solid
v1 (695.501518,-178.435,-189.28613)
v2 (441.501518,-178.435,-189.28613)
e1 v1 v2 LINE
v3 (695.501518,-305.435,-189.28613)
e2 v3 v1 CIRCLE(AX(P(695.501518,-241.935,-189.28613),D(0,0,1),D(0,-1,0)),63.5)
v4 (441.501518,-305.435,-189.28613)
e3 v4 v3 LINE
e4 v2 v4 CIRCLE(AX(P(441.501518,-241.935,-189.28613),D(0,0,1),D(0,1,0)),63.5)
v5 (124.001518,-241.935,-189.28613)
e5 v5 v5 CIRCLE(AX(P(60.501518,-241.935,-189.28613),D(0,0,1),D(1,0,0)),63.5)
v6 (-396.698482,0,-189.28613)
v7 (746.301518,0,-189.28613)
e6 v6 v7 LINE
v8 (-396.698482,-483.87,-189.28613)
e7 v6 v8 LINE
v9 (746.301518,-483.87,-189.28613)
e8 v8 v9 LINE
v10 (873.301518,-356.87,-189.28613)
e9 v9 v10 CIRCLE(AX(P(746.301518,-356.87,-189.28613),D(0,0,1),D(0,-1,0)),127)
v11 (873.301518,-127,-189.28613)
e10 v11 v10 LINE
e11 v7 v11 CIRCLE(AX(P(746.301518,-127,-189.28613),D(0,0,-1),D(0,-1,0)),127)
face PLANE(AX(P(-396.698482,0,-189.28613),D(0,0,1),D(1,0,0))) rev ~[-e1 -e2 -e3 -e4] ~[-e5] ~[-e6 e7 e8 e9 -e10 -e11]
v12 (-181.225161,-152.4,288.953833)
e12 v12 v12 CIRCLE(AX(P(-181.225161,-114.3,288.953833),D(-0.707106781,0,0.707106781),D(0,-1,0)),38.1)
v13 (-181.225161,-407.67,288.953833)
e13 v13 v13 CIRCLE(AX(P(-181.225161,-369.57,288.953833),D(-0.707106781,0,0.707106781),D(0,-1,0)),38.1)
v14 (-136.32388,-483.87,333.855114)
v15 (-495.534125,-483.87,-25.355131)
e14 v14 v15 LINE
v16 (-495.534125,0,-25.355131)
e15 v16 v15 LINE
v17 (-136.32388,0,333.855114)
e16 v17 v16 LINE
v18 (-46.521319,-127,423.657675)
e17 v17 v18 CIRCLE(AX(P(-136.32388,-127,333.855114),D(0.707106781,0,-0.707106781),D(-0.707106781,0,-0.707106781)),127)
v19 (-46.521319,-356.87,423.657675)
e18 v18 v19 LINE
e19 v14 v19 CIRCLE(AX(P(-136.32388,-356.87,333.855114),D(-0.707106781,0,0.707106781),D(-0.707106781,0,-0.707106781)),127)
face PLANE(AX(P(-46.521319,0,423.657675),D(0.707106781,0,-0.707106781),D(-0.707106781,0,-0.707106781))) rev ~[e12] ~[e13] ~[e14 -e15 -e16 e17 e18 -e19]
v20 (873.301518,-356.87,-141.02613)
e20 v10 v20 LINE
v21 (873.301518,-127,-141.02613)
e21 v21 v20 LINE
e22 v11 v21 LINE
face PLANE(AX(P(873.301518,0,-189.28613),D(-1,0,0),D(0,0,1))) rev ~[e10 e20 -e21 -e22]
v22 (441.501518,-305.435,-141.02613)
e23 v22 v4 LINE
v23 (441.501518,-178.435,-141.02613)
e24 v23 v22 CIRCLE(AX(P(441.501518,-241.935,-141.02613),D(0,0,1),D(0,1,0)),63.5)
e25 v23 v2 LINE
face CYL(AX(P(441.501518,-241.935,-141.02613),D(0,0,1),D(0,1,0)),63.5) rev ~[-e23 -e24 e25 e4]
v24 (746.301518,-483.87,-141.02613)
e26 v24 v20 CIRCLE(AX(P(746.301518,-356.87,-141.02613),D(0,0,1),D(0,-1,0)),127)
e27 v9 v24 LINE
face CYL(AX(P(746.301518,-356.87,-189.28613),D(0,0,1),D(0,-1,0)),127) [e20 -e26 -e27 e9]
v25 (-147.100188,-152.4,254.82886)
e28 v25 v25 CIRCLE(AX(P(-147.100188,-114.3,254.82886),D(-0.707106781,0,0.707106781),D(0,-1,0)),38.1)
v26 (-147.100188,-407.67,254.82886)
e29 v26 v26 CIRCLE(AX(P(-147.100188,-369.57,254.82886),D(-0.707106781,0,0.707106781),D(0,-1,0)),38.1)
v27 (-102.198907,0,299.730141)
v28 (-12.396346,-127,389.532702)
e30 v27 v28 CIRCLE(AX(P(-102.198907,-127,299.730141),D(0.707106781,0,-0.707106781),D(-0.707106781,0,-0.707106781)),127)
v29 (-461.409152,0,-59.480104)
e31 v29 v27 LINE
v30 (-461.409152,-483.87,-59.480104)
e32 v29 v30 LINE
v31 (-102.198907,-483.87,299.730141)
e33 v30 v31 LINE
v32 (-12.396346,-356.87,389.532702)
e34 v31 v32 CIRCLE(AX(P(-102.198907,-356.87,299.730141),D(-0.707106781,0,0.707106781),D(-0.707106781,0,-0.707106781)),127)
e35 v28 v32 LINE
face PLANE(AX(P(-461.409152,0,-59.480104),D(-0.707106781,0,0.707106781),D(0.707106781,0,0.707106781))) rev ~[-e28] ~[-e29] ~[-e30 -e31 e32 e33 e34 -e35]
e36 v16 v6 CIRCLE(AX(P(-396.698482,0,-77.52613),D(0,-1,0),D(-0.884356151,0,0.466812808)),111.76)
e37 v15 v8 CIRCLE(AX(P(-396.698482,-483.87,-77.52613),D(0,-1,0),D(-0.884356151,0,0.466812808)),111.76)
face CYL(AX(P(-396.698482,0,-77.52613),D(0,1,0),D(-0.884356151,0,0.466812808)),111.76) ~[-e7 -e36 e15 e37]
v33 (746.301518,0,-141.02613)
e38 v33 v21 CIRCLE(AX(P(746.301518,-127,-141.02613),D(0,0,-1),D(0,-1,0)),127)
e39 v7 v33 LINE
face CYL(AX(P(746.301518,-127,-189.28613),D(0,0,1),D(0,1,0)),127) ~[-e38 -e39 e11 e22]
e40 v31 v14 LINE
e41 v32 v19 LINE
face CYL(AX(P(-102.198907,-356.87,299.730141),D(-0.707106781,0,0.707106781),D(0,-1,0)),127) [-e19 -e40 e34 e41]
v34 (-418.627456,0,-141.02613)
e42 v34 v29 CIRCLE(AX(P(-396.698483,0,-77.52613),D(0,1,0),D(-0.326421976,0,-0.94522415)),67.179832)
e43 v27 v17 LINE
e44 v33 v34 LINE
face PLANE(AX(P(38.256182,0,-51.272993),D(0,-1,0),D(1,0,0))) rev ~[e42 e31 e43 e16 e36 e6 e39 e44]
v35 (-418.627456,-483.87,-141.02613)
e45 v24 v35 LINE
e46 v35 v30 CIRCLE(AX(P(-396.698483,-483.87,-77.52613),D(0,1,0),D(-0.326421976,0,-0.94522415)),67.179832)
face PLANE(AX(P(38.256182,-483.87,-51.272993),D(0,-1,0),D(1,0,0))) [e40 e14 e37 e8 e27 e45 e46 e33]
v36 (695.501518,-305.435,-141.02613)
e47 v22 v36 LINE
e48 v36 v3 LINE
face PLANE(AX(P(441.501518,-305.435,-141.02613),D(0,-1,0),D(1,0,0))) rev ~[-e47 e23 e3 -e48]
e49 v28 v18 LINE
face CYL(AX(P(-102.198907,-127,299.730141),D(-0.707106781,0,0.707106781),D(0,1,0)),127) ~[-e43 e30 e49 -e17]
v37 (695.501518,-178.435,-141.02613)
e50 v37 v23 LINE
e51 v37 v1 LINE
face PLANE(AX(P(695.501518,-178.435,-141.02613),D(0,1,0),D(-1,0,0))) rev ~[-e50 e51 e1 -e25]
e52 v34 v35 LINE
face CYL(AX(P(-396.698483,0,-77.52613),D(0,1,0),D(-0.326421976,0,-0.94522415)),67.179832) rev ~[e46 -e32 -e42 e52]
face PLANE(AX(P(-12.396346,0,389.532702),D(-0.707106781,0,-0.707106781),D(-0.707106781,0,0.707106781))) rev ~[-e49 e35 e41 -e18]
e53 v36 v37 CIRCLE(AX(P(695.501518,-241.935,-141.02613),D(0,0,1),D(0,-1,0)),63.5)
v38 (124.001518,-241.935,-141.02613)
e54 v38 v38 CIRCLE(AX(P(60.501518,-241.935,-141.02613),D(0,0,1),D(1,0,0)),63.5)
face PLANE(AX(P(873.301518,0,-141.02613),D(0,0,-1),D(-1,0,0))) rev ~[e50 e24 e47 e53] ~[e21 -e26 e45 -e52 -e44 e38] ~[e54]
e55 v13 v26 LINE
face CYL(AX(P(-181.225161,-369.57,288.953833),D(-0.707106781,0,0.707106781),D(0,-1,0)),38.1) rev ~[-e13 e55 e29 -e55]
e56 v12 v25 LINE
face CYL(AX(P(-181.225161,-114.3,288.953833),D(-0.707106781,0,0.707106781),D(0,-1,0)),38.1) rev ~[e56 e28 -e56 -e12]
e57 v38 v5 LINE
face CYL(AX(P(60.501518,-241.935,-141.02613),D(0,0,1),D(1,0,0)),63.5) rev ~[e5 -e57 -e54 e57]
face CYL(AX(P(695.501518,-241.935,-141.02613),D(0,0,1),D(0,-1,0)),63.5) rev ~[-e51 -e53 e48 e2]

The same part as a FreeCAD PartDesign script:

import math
import FreeCAD as App
import Part
import Sketcher

V = App.Vector
Q = App.Units.Quantity


def edges_at(feature, points):
    """Names of the edges that pass closest to the given points."""
    edges = feature.Shape.Edges
    near = lambda p: min(range(len(edges)), key=lambda i: edges[i].distToShape(Part.Vertex(*p))[0])
    return sorted({f"Edge{near(p) + 1}" for p in points})

doc = App.newDocument("Part")
body = doc.addObject("PartDesign::Body", "Body")

# Sketch on XZ plane
sketch1 = body.newObject("Sketcher::SketchObject", "Sketch")
sketch1.AttachmentSupport = (doc.getObject("XZ_Plane"), [""])
sketch1.MapMode = "FlatFace"
sketch1.addGeometry(Part.LineSegment(V(-396.698482, -189.28613, 0), V(873.301518, -189.28613, 0)), False)
sketch1.addGeometry(Part.LineSegment(V(873.301518, -189.28613, 0), V(873.301518, -141.02613, 0)), False)
sketch1.addGeometry(Part.LineSegment(V(873.301518, -141.02613, 0), V(-418.627456, -141.02613, 0)), False)
sketch1.addGeometry(Part.ArcOfCircle(Part.Circle(V(-396.698483, -77.52613, 0), V(0, 0, 1), 67.179832), math.radians(164.417675), math.radians(250.948253)), False)
sketch1.addGeometry(Part.LineSegment(V(-461.409152, -59.480104, 0), V(-12.396346, 389.532702, 0)), False)
sketch1.addGeometry(Part.LineSegment(V(-12.396346, 389.532702, 0), V(-46.521319, 423.657675, 0)), False)
sketch1.addGeometry(Part.LineSegment(V(-46.521319, 423.657675, 0), V(-495.534125, -25.355131, 0)), False)
sketch1.addGeometry(Part.ArcOfCircle(Part.Circle(V(-396.698482, -77.52613, 0), V(0, 0, 1), 111.76), math.radians(152.172393), math.radians(270)), False)
sketch1.addConstraint(Sketcher.Constraint("Coincident", 0, 2, 1, 1))
sketch1.addConstraint(Sketcher.Constraint("Coincident", 1, 2, 2, 1))
sketch1.addConstraint(Sketcher.Constraint("Coincident", 2, 2, 3, 2))
sketch1.addConstraint(Sketcher.Constraint("Coincident", 3, 1, 4, 1))
sketch1.addConstraint(Sketcher.Constraint("Coincident", 4, 2, 5, 1))
sketch1.addConstraint(Sketcher.Constraint("Coincident", 5, 2, 6, 1))
sketch1.addConstraint(Sketcher.Constraint("Coincident", 6, 2, 7, 1))
sketch1.addConstraint(Sketcher.Constraint("Tangent", 7, 2, 0, 1))
sketch1.addConstraint(Sketcher.Constraint("Horizontal", 0))
sketch1.addConstraint(Sketcher.Constraint("Vertical", 1))
sketch1.addConstraint(Sketcher.Constraint("Horizontal", 2))
sketch1.addConstraint(Sketcher.Constraint("Coincident", 7, 3, 3, 3))
sketch1.addConstraint(Sketcher.Constraint("Perpendicular", 4, 5))
sketch1.addConstraint(Sketcher.Constraint("Perpendicular", 5, 6))
sketch1.addConstraint(Sketcher.Constraint("Equal", 4, 6))
sketch1.addConstraint(Sketcher.Constraint("Radius", 7, Q("4.4 in")))
sketch1.addConstraint(Sketcher.Constraint("DistanceX", 0, 1, 0, 2, Q("50 in")))
sketch1.addConstraint(Sketcher.Constraint("Distance", 4, Q("25 in")))
sketch1.addConstraint(Sketcher.Constraint("DistanceY", 1, 1, 1, 2, Q("1.9 in")))
sketch1.addConstraint(Sketcher.Constraint("Angle", 4, Q("45 deg")))
sketch1.addConstraint(Sketcher.Constraint("Distance", 5, Q("1.9 in")))
sketch1.addConstraint(Sketcher.Constraint("Radius", 3, Q("67.179832 mm")))
sketch1.addConstraint(Sketcher.Constraint("DistanceY", -1, 1, 4, 2, Q("389.532702 mm")))
sketch1.addConstraint(Sketcher.Constraint("DistanceX", 7, 3, -1, 1, Q("396.698482 mm")))
pad1 = body.newObject("PartDesign::Pad", "Pad")
pad1.Profile = sketch1
pad1.Length = Q("19.05 in")

# Sketch on XY plane
sketch2 = body.newObject("Sketcher::SketchObject", "Sketch001")
sketch2.AttachmentSupport = (doc.getObject("XY_Plane"), [""])
sketch2.MapMode = "FlatFace"
sketch2.AttachmentOffset = App.Placement(V(0, 0, -141.02613), App.Rotation())
sketch2.addGeometry(Part.LineSegment(V(441.501518, -305.435, 0), V(695.501518, -305.435, 0)), False)
sketch2.addGeometry(Part.ArcOfCircle(Part.Circle(V(695.501518, -241.935, 0), V(0, 0, 1), 63.5), math.radians(-90), math.radians(90)), False)
sketch2.addGeometry(Part.LineSegment(V(695.501518, -178.435, 0), V(441.501518, -178.435, 0)), False)
sketch2.addGeometry(Part.ArcOfCircle(Part.Circle(V(441.501518, -241.935, 0), V(0, 0, 1), 63.5), math.radians(90), math.radians(270)), False)
sketch2.addGeometry(Part.Circle(V(60.501518, -241.935, 0), V(0, 0, 1), 63.5), False)
sketch2.addConstraint(Sketcher.Constraint("Tangent", 0, 2, 1, 1))
sketch2.addConstraint(Sketcher.Constraint("Tangent", 1, 2, 2, 1))
sketch2.addConstraint(Sketcher.Constraint("Tangent", 2, 2, 3, 1))
sketch2.addConstraint(Sketcher.Constraint("Tangent", 3, 2, 0, 1))
sketch2.addConstraint(Sketcher.Constraint("Horizontal", 0))
sketch2.addConstraint(Sketcher.Constraint("Horizontal", 2))
sketch2.addConstraint(Sketcher.Constraint("Equal", 3, 4))
sketch2.addConstraint(Sketcher.Constraint("Horizontal", 3, 3, 4, 3))
sketch2.addConstraint(Sketcher.Constraint("Diameter", 4, Q("5 in")))
sketch2.addConstraint(Sketcher.Constraint("DistanceX", 0, 1, 0, 2, Q("10 in")))
sketch2.addConstraint(Sketcher.Constraint("DistanceX", 4, 3, 3, 3, Q("15 in")))
sketch2.addConstraint(Sketcher.Constraint("DistanceY", 1, 3, -1, 1, Q("9.525 in")))
sketch2.addConstraint(Sketcher.Constraint("DistanceX", -1, 1, 1, 3, Q("695.501518 mm")))
pocket1 = body.newObject("PartDesign::Pocket", "Pocket")
pocket1.Profile = sketch2
pocket1.Length = Q("5.4 in")
doc.recompute()

fillet = body.newObject("PartDesign::Fillet", "Fillet")
fillet.Base = (pocket1, edges_at(pocket1, [(873.302, -483.87, -165.156), (873.302, 0, -165.156)]))
fillet.Radius = Q("5 in")

# Sketch on an angled plane
sketch3 = body.newObject("Sketcher::SketchObject", "Sketch002")
sketch3.Placement = App.Placement(V(-235.089497, 0, 235.089497), App.Rotation(V(0, -1, 0), V(0.707106781, 0, 0.707106781), V(-0.707106781, 0, 0.707106781), "ZXY"))
sketch3.addGeometry(Part.Circle(V(369.57, 76.175675, 0), V(0, 0, 1), 38.1), False)
sketch3.addGeometry(Part.Circle(V(114.3, 76.175675, 0), V(0, 0, 1), 38.1), False)
sketch3.addConstraint(Sketcher.Constraint("Equal", 0, 1))
sketch3.addConstraint(Sketcher.Constraint("Horizontal", 0, 3, 1, 3))
sketch3.addConstraint(Sketcher.Constraint("Diameter", 0, Q("3 in")))
sketch3.addConstraint(Sketcher.Constraint("DistanceX", -1, 1, 1, 3, Q("4.5 in")))
sketch3.addConstraint(Sketcher.Constraint("DistanceX", -1, 1, 0, 3, Q("14.55 in")))
sketch3.addConstraint(Sketcher.Constraint("DistanceY", -1, 1, 0, 3, Q("76.175675 mm")))
pocket2 = body.newObject("PartDesign::Pocket", "Pocket001")
pocket2.Profile = sketch3
pocket2.Length = Q("3.2 in")
doc.recompute()

fillet2 = body.newObject("PartDesign::Fillet", "Fillet001")
fillet2.Base = (pocket2, edges_at(pocket2, [(-29.459, -483.87, 406.595), (-29.459, 0, 406.595)]))
fillet2.Radius = Q("5 in")

doc.recompute()
